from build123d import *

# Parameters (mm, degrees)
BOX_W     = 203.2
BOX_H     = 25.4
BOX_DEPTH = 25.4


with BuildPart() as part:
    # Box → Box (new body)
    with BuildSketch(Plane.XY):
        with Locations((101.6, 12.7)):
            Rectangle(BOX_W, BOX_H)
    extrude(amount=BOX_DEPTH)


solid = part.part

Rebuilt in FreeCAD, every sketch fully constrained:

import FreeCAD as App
import Part
import Sketcher

V = App.Vector
Q = App.Units.Quantity


def add_polygon(sketch, points):
    """Adds a closed chain of lines whose ends are joined by coincident constraints."""
    first, n = sketch.GeometryCount, len(points)
    for a, b in zip(points, points[1:] + points[:1]):
        sketch.addGeometry(Part.LineSegment(App.Vector(*a, 0), App.Vector(*b, 0)), False)
    for i in range(n):
        sketch.addConstraint(Sketcher.Constraint("Coincident", first + i, 2, first + (i + 1) % n, 1))

doc = App.newDocument("Part")
body = doc.addObject("PartDesign::Body", "Body")

sketch1 = doc.addObject("Sketcher::SketchObject", "Sketch")
body.addObject(sketch1)
sketch1.AttachmentSupport = (doc.XY_Plane, [""])
sketch1.MapMode = "FlatFace"
add_polygon(sketch1, [(0, 25.4), (0, 0), (203.2, 0), (203.2, 25.4)])
sketch1.addConstraint(Sketcher.Constraint("Vertical", 0))
sketch1.addConstraint(Sketcher.Constraint("Horizontal", 1))
sketch1.addConstraint(Sketcher.Constraint("Vertical", 2))
sketch1.addConstraint(Sketcher.Constraint("Horizontal", 3))
sketch1.addConstraint(Sketcher.Constraint("Coincident", 0, 2, -1, 1))
sketch1.addConstraint(Sketcher.Constraint("DistanceX", 1, 1, 1, 2, Q("8 in")))
sketch1.addConstraint(Sketcher.Constraint("DistanceY", 0, 2, 0, 1, Q("1 in")))
pad1 = doc.addObject("PartDesign::Pad", "Pad")
body.addObject(pad1)
pad1.Profile = sketch1
pad1.Length = Q("1 in")

doc.recompute()
